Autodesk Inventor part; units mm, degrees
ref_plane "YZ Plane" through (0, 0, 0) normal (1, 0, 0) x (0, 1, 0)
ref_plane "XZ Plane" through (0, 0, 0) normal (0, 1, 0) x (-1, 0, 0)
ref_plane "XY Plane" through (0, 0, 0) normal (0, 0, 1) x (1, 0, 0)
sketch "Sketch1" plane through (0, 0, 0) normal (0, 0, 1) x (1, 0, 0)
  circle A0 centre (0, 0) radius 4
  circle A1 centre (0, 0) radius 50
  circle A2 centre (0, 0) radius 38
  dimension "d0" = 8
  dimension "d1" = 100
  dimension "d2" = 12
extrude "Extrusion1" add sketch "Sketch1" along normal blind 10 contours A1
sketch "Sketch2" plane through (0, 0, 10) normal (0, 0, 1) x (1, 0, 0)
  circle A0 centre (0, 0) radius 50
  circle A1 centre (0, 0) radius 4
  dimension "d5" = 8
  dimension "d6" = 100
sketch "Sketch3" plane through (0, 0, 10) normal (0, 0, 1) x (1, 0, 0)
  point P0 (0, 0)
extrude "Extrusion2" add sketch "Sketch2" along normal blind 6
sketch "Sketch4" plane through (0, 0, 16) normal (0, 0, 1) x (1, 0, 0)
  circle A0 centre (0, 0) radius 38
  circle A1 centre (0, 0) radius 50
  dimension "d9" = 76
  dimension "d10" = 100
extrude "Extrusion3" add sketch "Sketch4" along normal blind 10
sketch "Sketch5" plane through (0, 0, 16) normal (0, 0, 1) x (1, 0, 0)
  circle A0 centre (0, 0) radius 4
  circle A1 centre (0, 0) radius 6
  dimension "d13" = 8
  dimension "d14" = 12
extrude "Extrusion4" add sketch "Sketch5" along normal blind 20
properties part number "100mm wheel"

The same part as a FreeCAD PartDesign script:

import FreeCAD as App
import Part
import Sketcher

V = App.Vector

doc = App.newDocument("Part")
body = doc.addObject("PartDesign::Body", "Body")

sketch1 = body.newObject("Sketcher::SketchObject", "Sketch")
sketch1.AttachmentSupport = (doc.getObject("XY_Plane"), [""])
sketch1.MapMode = "FlatFace"
sketch1.addGeometry(Part.Circle(V(0, 0, 0), V(0, 0, 1), 50), False)
sketch1.addGeometry(Part.Circle(V(0, 0, 0), V(0, 0, 1), 38), False)
sketch1.addConstraint(Sketcher.Constraint("Coincident", 0, 3, -1, 1))
sketch1.addConstraint(Sketcher.Constraint("Coincident", 1, 3, -1, 1))
sketch1.addConstraint(Sketcher.Constraint("Diameter", 0, 100.0))
sketch1.addConstraint(Sketcher.Constraint("Diameter", 1, 76.0))
pad1 = body.newObject("PartDesign::Pad", "Pad")
pad1.Profile = sketch1
pad1.Length = 10

sketch2 = body.newObject("Sketcher::SketchObject", "Sketch001")
sketch2.AttachmentSupport = (doc.getObject("XY_Plane"), [""])
sketch2.MapMode = "FlatFace"
sketch2.AttachmentOffset = App.Placement(V(0, 0, 10), App.Rotation())
sketch2.addGeometry(Part.Circle(V(0, 0, 0), V(0, 0, 1), 50), False)
sketch2.addGeometry(Part.Circle(V(0, 0, 0), V(0, 0, 1), 4), False)
sketch2.addConstraint(Sketcher.Constraint("Coincident", 0, 3, -1, 1))
sketch2.addConstraint(Sketcher.Constraint("Coincident", 1, 3, -1, 1))
sketch2.addConstraint(Sketcher.Constraint("Diameter", 0, 100.0))
sketch2.addConstraint(Sketcher.Constraint("Diameter", 1, 8.0))
pad2 = body.newObject("PartDesign::Pad", "Pad001")
pad2.Profile = sketch2
pad2.Length = 6

sketch3 = body.newObject("Sketcher::SketchObject", "Sketch002")
sketch3.AttachmentSupport = (doc.getObject("XY_Plane"), [""])
sketch3.MapMode = "FlatFace"
sketch3.AttachmentOffset = App.Placement(V(0, 0, 16), App.Rotation())
sketch3.addGeometry(Part.Circle(V(0, 0, 0), V(0, 0, 1), 50), False)
sketch3.addGeometry(Part.Circle(V(0, 0, 0), V(0, 0, 1), 38), False)
sketch3.addConstraint(Sketcher.Constraint("Coincident", 0, 3, -1, 1))
sketch3.addConstraint(Sketcher.Constraint("Coincident", 1, 3, -1, 1))
sketch3.addConstraint(Sketcher.Constraint("Diameter", 0, 100.0))
sketch3.addConstraint(Sketcher.Constraint("Diameter", 1, 76.0))
pad3 = body.newObject("PartDesign::Pad", "Pad002")
pad3.Profile = sketch3
pad3.Length = 10

sketch4 = body.newObject("Sketcher::SketchObject", "Sketch003")
sketch4.AttachmentSupport = (doc.getObject("XY_Plane"), [""])
sketch4.MapMode = "FlatFace"
sketch4.AttachmentOffset = App.Placement(V(0, 0, 16), App.Rotation())
sketch4.addGeometry(Part.Circle(V(0, 0, 0), V(0, 0, 1), 6), False)
sketch4.addGeometry(Part.Circle(V(0, 0, 0), V(0, 0, 1), 4), False)
sketch4.addConstraint(Sketcher.Constraint("Coincident", 0, 3, -1, 1))
sketch4.addConstraint(Sketcher.Constraint("Coincident", 1, 3, -1, 1))
sketch4.addConstraint(Sketcher.Constraint("Diameter", 0, 12.0))
sketch4.addConstraint(Sketcher.Constraint("Diameter", 1, 8.0))
pad4 = body.newObject("PartDesign::Pad", "Pad003")
pad4.Profile = sketch4
pad4.Length = 20

doc.recompute()
